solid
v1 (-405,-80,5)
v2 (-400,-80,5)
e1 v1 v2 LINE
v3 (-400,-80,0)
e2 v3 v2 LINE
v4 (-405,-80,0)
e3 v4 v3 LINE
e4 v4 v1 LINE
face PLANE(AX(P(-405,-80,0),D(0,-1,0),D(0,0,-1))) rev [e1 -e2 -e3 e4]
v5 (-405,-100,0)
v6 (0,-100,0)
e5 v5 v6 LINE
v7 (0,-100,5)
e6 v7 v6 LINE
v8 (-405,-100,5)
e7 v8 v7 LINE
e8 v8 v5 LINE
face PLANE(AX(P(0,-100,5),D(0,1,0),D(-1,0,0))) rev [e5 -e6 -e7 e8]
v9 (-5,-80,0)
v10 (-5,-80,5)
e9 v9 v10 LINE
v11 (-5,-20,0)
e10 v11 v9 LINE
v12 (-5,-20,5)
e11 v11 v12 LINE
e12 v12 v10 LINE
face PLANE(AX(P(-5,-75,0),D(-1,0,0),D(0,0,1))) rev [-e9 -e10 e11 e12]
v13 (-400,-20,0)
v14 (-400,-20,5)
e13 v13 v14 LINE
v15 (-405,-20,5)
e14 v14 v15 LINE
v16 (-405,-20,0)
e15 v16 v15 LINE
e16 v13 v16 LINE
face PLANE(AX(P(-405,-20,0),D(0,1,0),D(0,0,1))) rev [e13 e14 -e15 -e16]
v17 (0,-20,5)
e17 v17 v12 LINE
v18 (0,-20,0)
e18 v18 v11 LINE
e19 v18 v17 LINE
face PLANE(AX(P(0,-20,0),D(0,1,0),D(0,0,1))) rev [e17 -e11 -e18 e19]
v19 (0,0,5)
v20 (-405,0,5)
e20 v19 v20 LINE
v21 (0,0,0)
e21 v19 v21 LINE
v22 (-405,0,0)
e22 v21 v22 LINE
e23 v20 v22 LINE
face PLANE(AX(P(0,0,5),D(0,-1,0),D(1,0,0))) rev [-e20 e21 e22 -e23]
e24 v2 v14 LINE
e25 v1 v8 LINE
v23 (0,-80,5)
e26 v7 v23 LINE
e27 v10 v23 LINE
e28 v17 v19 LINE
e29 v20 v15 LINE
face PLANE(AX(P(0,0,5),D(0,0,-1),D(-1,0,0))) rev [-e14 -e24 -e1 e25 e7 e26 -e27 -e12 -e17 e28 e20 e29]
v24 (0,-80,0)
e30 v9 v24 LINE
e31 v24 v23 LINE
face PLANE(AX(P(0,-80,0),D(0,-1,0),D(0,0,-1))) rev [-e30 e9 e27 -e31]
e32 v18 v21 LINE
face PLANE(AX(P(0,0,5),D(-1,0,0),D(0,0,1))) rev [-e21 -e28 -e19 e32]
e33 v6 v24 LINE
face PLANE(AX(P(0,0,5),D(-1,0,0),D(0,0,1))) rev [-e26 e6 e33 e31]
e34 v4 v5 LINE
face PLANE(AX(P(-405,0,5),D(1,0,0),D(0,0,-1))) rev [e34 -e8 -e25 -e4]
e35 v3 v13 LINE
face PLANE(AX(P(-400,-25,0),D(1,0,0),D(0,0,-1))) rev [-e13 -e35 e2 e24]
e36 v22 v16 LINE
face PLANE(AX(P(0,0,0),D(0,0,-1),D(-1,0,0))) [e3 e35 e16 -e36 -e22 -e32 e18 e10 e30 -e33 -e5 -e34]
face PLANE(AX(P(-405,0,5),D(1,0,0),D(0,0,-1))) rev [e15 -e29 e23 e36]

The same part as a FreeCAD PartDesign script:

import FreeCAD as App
import Part
import Sketcher

V = App.Vector


def add_polygon(sketch, points):
    """Adds a closed chain of lines whose ends are joined by coincident constraints."""
    first, n = sketch.GeometryCount, len(points)
    for a, b in zip(points, points[1:] + points[:1]):
        sketch.addGeometry(Part.LineSegment(App.Vector(*a, 0), App.Vector(*b, 0)), False)
    for i in range(n):
        sketch.addConstraint(Sketcher.Constraint("Coincident", first + i, 2, first + (i + 1) % n, 1))

doc = App.newDocument("Part")
body = doc.addObject("PartDesign::Body", "Body")

# Sketch on XY plane
sketch1 = body.newObject("Sketcher::SketchObject", "Sketch")
sketch1.AttachmentSupport = (doc.getObject("XY_Plane"), [""])
sketch1.MapMode = "FlatFace"
add_polygon(sketch1, [(-405, 0), (-405, -100), (0, -100), (0, 0)])  # lines 0-3
sketch1.addConstraint([
    Sketcher.Constraint("Vertical", 0),
    Sketcher.Constraint("Horizontal", 1),
    Sketcher.Constraint("Vertical", 2),
    Sketcher.Constraint("Horizontal", 3),
    Sketcher.Constraint("Coincident", 2, 2, -1, 1),
    Sketcher.Constraint("DistanceX", 1, 1, 1, 2, 405.0),
    Sketcher.Constraint("DistanceY", 0, 2, 0, 1, 100.0),
])
pad1 = body.newObject("PartDesign::Pad", "Pad")
pad1.Profile = sketch1
pad1.Length = 5

# Sketch on XY plane
sketch2 = body.newObject("Sketcher::SketchObject", "Sketch001")
sketch2.AttachmentSupport = (doc.getObject("XY_Plane"), [""])
sketch2.MapMode = "FlatFace"
sketch2.AttachmentOffset = App.Placement(V(0, 0, 5), App.Rotation())
add_polygon(sketch2, [(-405, -75), (-405, -80), (-400, -80), (-400, -75)])  # lines 0-3
add_polygon(sketch2, [(-405, -20), (-405, -25), (-400, -25), (-400, -20)])  # lines 4-7
add_polygon(sketch2, [(-5, -20), (-5, -25), (0, -25), (0, -20)])  # lines 8-11
add_polygon(sketch2, [(-5, -75), (-5, -80), (0, -80), (0, -75)])  # lines 12-15
sketch2.addConstraint([
    Sketcher.Constraint("Vertical", 0),
    Sketcher.Constraint("Horizontal", 1),
    Sketcher.Constraint("Vertical", 2),
    Sketcher.Constraint("Horizontal", 3),
    Sketcher.Constraint("Vertical", 4),
    Sketcher.Constraint("Horizontal", 5),
    Sketcher.Constraint("Vertical", 6),
    Sketcher.Constraint("Horizontal", 7),
    Sketcher.Constraint("Vertical", 8),
    Sketcher.Constraint("Horizontal", 9),
    Sketcher.Constraint("Vertical", 10),
    Sketcher.Constraint("Horizontal", 11),
    Sketcher.Constraint("Vertical", 12),
    Sketcher.Constraint("Horizontal", 13),
    Sketcher.Constraint("Vertical", 14),
    Sketcher.Constraint("Horizontal", 15),
    Sketcher.Constraint("PointOnObject", 9, 2, -2),
    Sketcher.Constraint("PointOnObject", 13, 2, -2),
    Sketcher.Constraint("Horizontal", 5, 2, 8, 2),
    Sketcher.Constraint("Horizontal", 7, 2, 10, 2),
    Sketcher.Constraint("Horizontal", 1, 2, 12, 2),
    Sketcher.Constraint("Horizontal", 3, 2, 14, 2),
    Sketcher.Constraint("Vertical", 3, 2, 4, 2),
    Sketcher.Constraint("Vertical", 2, 2, 5, 2),
    Sketcher.Constraint("Vertical", 11, 2, 12, 2),
    Sketcher.Constraint("Equal", 7, 9),
    Sketcher.Constraint("Equal", 15, 0),
    Sketcher.Constraint("Equal", 2, 4),
    Sketcher.Constraint("DistanceX", 1, 1, 1, 2, 5.0),
    Sketcher.Constraint("DistanceX", 0, 2, -1, 1, 405.0),
    Sketcher.Constraint("DistanceY", 0, 2, -1, 1, 80.0),
    Sketcher.Constraint("DistanceY", 4, 2, -1, 1, 25.0),
])
pocket1 = body.newObject("PartDesign::Pocket", "Pocket")
pocket1.Profile = sketch2
pocket1.Length = 5

# Sketch on XY plane
sketch3 = body.newObject("Sketcher::SketchObject", "Sketch002")
sketch3.AttachmentSupport = (doc.getObject("XY_Plane"), [""])
sketch3.MapMode = "FlatFace"
sketch3.AttachmentOffset = App.Placement(V(0, 0, 5), App.Rotation())
add_polygon(sketch3, [(-405, -30), (-405, -25), (-415, -25), (-415, -75), (-405, -75), (-405, -70), (-410, -70), (-410, -30)])  # lines 0-7
add_polygon(sketch3, [(0, -30), (5, -30), (5, -70), (0, -70), (0, -75), (10, -75), (10, -25), (0, -25)])  # lines 8-15
sketch3.addConstraint([
    Sketcher.Constraint("Vertical", 0),
    Sketcher.Constraint("Horizontal", 1),
    Sketcher.Constraint("Vertical", 2),
    Sketcher.Constraint("Horizontal", 3),
    Sketcher.Constraint("Vertical", 4),
    Sketcher.Constraint("Horizontal", 5),
    Sketcher.Constraint("Vertical", 6),
    Sketcher.Constraint("Horizontal", 7),
    Sketcher.Constraint("Horizontal", 8),
    Sketcher.Constraint("Vertical", 9),
    Sketcher.Constraint("Horizontal", 10),
    Sketcher.Constraint("Vertical", 11),
    Sketcher.Constraint("Horizontal", 12),
    Sketcher.Constraint("Vertical", 13),
    Sketcher.Constraint("Horizontal", 14),
    Sketcher.Constraint("Vertical", 15),
    Sketcher.Constraint("PointOnObject", 10, 2, -2),
    Sketcher.Constraint("PointOnObject", 14, 2, -2),
    Sketcher.Constraint("Horizontal", 7, 2, 8, 2),
    Sketcher.Constraint("Horizontal", 5, 2, 9, 2),
    Sketcher.Constraint("Horizontal", 3, 2, 11, 2),
    Sketcher.Constraint("Horizontal", 1, 2, 13, 2),
    Sketcher.Constraint("Vertical", 0, 2, 3, 2),
    Sketcher.Constraint("Equal", 7, 8),
    Sketcher.Constraint("Equal", 3, 12),
    Sketcher.Constraint("Equal", 10, 0),
    Sketcher.Constraint("Equal", 0, 4),
    Sketcher.Constraint("DistanceX", 1, 2, 1, 1, 10.0),
    Sketcher.Constraint("DistanceX", 5, 2, 5, 1, 5.0),
    Sketcher.Constraint("DistanceY", 2, 2, 2, 1, 50.0),
    Sketcher.Constraint("DistanceX", 0, 2, -1, 1, 405.0),
    Sketcher.Constraint("DistanceY", 0, 2, -1, 1, 25.0),
])
pad2 = body.newObject("PartDesign::Pad", "Pad001")
pad2.Profile = sketch3
pad2.Length = 5
pad2.Reversed = True

# Sketch on XY plane
sketch4 = body.newObject("Sketcher::SketchObject", "Sketch003")
sketch4.AttachmentSupport = (doc.getObject("XY_Plane"), [""])
sketch4.MapMode = "FlatFace"
sketch4.AttachmentOffset = App.Placement(V(0, 0, 5), App.Rotation())
add_polygon(sketch4, [(-5, -25), (-5, -75), (10, -75), (10, -25)])  # lines 0-3
add_polygon(sketch4, [(-415, -25), (-415, -75), (-400, -75), (-400, -25)])  # lines 4-7
sketch4.addConstraint([
    Sketcher.Constraint("Vertical", 0),
    Sketcher.Constraint("Horizontal", 1),
    Sketcher.Constraint("Vertical", 2),
    Sketcher.Constraint("Horizontal", 3),
    Sketcher.Constraint("Vertical", 4),
    Sketcher.Constraint("Horizontal", 5),
    Sketcher.Constraint("Vertical", 6),
    Sketcher.Constraint("Horizontal", 7),
    Sketcher.Constraint("Horizontal", 1, 2, 4, 2),
    Sketcher.Constraint("Horizontal", 3, 2, 6, 2),
    Sketcher.Constraint("Equal", 3, 5),
    Sketcher.Constraint("DistanceX", 1, 1, 1, 2, 15.0),
    Sketcher.Constraint("DistanceY", 0, 2, 0, 1, 50.0),
    Sketcher.Constraint("DistanceX", 0, 2, -1, 1, 5.0),
    Sketcher.Constraint("DistanceY", 0, 2, -1, 1, 75.0),
    Sketcher.Constraint("DistanceX", 4, 2, -1, 1, 415.0),
])
pocket2 = body.newObject("PartDesign::Pocket", "Pocket001")
pocket2.Profile = sketch4
pocket2.Length = 5

doc.recompute()
